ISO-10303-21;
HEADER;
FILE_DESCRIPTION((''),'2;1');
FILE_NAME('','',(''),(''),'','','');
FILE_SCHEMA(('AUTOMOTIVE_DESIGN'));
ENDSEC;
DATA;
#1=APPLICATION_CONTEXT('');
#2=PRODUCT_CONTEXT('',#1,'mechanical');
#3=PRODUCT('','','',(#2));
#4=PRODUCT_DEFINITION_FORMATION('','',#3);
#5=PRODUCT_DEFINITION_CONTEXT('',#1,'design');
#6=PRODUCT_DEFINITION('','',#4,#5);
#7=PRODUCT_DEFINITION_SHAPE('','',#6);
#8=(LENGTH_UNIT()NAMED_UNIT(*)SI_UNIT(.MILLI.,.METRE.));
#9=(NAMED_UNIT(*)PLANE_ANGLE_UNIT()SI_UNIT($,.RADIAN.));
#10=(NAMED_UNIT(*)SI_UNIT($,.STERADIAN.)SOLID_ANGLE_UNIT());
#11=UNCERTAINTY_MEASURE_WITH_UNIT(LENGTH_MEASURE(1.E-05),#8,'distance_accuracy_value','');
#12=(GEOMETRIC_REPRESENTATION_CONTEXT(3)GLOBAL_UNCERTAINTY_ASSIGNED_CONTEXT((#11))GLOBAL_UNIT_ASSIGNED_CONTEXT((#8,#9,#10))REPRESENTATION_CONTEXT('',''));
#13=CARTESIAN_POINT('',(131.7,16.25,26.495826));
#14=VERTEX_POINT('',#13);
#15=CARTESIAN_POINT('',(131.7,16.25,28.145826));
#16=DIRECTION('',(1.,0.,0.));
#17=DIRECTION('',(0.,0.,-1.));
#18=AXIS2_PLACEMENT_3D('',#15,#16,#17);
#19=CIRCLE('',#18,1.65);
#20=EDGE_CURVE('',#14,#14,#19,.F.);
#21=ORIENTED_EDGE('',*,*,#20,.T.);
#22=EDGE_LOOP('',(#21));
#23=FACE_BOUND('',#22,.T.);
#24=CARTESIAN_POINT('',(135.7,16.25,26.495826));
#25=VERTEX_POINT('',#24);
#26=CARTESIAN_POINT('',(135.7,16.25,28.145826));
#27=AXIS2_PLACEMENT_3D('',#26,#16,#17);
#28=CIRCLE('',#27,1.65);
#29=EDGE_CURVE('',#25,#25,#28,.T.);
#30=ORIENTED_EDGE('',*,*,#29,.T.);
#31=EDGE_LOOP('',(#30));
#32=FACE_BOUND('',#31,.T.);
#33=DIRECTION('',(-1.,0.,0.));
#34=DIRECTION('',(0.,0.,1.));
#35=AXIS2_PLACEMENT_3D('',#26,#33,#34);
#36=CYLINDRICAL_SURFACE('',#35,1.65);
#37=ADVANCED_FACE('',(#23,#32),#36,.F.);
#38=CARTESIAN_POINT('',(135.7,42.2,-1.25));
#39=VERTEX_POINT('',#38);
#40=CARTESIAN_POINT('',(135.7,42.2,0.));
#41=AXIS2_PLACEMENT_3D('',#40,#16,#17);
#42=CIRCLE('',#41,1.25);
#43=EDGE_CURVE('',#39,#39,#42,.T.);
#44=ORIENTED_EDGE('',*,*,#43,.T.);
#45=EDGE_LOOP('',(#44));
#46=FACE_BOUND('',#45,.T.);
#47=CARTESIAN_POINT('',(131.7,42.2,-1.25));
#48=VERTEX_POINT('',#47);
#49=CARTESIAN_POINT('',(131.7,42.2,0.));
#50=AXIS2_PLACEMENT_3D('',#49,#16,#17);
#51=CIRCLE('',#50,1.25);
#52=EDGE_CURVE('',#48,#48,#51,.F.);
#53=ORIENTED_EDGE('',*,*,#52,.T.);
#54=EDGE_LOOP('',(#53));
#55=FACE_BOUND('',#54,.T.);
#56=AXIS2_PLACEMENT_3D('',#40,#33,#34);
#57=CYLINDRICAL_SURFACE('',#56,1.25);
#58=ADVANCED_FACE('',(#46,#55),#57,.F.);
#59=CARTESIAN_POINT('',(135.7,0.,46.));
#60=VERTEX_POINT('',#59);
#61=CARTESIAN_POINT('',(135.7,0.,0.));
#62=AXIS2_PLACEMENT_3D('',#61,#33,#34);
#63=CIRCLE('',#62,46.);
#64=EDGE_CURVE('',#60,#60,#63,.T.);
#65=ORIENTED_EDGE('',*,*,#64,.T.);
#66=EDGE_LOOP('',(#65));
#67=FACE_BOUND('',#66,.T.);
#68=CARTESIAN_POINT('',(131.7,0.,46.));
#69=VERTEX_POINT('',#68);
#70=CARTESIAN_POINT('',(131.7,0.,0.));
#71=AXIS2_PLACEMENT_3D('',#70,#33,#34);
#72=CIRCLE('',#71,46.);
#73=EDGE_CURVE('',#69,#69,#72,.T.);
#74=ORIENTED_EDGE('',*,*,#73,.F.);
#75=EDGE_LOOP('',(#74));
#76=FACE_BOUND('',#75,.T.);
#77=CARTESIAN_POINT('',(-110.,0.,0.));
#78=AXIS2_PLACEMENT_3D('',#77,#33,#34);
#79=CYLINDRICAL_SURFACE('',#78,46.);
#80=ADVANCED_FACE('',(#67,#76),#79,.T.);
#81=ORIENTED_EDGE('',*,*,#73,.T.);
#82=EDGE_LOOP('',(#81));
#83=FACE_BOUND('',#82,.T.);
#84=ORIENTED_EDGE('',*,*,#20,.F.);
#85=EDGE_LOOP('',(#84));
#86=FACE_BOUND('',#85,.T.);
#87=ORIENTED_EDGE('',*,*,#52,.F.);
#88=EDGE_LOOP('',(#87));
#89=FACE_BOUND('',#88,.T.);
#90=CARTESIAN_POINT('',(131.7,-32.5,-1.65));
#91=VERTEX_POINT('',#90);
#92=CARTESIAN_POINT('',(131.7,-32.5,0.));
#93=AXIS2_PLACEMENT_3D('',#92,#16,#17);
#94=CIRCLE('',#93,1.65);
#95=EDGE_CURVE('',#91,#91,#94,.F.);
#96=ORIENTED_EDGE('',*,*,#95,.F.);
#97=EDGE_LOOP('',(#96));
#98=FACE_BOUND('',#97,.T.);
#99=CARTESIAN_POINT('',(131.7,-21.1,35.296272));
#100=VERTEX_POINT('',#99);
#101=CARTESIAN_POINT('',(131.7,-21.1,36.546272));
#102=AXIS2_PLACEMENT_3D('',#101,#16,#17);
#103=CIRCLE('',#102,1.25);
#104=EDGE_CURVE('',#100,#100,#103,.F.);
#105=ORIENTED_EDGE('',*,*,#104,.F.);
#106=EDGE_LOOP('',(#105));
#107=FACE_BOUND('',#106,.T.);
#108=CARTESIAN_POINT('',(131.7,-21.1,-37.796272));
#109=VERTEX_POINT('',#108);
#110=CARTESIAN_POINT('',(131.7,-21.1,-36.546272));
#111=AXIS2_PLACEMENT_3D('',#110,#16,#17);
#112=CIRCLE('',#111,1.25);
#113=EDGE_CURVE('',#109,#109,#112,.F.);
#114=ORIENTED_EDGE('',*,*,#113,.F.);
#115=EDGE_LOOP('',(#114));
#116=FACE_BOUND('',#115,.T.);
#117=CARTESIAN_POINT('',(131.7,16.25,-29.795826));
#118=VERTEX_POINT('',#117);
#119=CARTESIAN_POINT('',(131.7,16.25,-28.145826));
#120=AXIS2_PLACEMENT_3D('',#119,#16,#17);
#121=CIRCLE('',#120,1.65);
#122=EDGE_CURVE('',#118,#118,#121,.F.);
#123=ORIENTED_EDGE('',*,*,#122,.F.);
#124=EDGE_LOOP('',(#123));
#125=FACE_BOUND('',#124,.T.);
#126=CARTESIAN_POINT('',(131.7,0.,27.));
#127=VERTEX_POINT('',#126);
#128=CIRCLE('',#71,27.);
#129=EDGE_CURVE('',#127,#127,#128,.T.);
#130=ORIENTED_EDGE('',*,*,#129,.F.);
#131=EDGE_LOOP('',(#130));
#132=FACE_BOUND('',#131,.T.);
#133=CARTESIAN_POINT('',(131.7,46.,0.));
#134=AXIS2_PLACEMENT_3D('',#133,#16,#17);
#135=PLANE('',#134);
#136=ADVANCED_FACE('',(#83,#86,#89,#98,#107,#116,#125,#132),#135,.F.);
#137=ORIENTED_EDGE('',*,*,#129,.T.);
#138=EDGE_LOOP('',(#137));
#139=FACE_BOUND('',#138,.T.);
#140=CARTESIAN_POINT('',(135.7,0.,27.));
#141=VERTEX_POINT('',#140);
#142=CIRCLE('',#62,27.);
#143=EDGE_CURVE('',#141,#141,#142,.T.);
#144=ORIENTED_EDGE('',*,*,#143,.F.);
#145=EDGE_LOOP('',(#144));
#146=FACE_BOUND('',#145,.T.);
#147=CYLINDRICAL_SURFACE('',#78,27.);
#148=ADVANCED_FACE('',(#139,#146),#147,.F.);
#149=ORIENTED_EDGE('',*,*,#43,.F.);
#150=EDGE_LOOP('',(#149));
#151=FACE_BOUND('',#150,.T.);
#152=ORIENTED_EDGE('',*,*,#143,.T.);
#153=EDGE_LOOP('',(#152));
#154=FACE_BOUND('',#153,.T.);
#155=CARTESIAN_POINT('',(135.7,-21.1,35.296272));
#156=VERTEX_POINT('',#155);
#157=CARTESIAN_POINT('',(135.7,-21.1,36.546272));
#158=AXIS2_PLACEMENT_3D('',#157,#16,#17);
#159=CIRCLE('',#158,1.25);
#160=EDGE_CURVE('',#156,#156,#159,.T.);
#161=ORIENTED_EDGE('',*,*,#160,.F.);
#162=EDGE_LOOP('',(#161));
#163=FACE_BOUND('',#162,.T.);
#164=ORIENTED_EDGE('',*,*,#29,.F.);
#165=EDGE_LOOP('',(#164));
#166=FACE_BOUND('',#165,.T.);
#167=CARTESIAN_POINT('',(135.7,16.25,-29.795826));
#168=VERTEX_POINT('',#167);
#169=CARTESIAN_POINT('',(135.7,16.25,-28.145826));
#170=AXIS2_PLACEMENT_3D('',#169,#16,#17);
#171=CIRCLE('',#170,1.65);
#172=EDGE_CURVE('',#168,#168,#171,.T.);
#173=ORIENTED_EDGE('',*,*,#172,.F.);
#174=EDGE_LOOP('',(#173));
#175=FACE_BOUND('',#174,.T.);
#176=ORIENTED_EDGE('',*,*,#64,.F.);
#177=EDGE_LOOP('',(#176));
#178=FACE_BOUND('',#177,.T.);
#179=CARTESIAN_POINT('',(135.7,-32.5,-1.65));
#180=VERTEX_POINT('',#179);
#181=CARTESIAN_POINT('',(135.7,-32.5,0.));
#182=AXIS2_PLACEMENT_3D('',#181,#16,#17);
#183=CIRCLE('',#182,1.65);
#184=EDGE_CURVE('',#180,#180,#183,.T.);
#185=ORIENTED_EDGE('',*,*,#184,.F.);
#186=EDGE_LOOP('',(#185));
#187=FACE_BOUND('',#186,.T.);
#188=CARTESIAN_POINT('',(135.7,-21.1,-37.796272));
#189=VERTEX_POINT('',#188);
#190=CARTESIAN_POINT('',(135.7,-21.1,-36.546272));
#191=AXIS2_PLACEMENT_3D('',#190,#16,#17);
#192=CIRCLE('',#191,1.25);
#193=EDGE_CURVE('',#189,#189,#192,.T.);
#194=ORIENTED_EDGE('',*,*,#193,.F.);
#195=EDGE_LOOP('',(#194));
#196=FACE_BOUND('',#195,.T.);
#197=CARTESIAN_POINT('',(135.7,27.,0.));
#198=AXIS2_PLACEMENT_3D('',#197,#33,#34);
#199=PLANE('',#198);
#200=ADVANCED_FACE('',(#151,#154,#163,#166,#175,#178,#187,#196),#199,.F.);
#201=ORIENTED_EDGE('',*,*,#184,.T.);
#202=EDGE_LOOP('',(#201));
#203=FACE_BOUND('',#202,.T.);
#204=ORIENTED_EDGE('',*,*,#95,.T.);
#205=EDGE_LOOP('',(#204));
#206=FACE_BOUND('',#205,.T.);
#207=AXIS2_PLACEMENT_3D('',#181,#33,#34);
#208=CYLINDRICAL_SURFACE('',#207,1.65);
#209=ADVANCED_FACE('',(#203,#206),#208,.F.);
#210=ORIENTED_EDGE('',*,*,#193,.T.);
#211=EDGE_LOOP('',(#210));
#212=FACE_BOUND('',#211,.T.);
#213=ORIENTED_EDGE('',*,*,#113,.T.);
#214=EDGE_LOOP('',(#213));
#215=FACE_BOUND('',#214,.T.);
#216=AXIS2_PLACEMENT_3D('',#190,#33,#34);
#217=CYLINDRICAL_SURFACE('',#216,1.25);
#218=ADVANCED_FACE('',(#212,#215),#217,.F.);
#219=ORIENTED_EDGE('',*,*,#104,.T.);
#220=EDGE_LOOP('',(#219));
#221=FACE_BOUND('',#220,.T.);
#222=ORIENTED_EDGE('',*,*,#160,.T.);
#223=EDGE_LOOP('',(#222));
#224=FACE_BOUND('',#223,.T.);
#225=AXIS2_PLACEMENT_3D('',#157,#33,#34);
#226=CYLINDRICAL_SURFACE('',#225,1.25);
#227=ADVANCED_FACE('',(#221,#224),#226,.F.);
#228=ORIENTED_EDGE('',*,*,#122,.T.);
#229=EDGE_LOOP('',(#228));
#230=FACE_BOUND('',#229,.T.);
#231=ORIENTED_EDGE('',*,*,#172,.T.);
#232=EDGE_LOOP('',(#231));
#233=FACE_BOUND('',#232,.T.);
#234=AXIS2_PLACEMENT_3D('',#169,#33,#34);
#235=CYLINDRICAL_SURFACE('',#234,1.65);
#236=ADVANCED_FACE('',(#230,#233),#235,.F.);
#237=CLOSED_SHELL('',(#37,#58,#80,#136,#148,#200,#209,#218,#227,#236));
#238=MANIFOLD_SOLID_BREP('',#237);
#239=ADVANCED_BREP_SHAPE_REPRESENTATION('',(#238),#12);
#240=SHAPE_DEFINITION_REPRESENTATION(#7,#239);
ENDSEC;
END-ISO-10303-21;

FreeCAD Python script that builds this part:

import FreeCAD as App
import Part
import Sketcher

V = App.Vector
Q = App.Units.Quantity


def add_polygon(sketch, points):
    """Adds a closed chain of lines whose ends are joined by coincident constraints."""
    first, n = sketch.GeometryCount, len(points)
    for a, b in zip(points, points[1:] + points[:1]):
        sketch.addGeometry(Part.LineSegment(App.Vector(*a, 0), App.Vector(*b, 0)), False)
    for i in range(n):
        sketch.addConstraint(Sketcher.Constraint("Coincident", first + i, 2, first + (i + 1) % n, 1))

doc = App.newDocument("Part")
body = doc.addObject("PartDesign::Body", "Body")

sketch1 = body.newObject("Sketcher::SketchObject", "Sketch")
sketch1.AttachmentSupport = (doc.getObject("XY_Plane"), [""])
sketch1.MapMode = "FlatFace"
add_polygon(sketch1, [(131.7, 46), (131.7, 27), (135.7, 27), (135.7, 46)])
sketch1.addConstraint([
    Sketcher.Constraint("Vertical", 0),
    Sketcher.Constraint("Horizontal", 1),
    Sketcher.Constraint("Vertical", 2),
    Sketcher.Constraint("Horizontal", 3),
    Sketcher.Constraint("DistanceX", 1, 1, 1, 2, Q("4 mm")),
    Sketcher.Constraint("DistanceY", 0, 2, 0, 1, Q("19 mm")),
    Sketcher.Constraint("DistanceY", -1, 1, 0, 2, Q("27 mm")),
    Sketcher.Constraint("DistanceX", -1, 1, 0, 2, Q("131.7 mm")),
])
revolution = body.newObject("PartDesign::Revolution", "Revolution")
revolution.Profile = sketch1
revolution.ReferenceAxis = (sketch1, ["H_Axis"])
revolution.Angle = 360

sketch2 = body.newObject("Sketcher::SketchObject", "Sketch001")
sketch2.AttachmentSupport = (doc.getObject("YZ_Plane"), [""])
sketch2.MapMode = "FlatFace"
sketch2.addGeometry([
    Part.Circle(V(42.2, 0, 0), V(0, 0, 1), 1.2),
    Part.Circle(V(-21.1, 36.5, 0), V(0, 0, 1), 1.2),
    Part.Circle(V(-21.1, -36.5, 0), V(0, 0, 1), 1.2),
    Part.Circle(V(16.2, 28.1, 0), V(0, 0, 1), 1.6),
    Part.Circle(V(-32.5, 0, 0), V(0, 0, 1), 1.6),
    Part.Circle(V(16.2, -28.1, 0), V(0, 0, 1), 1.6),
], False)
sketch2.addConstraint([
    Sketcher.Constraint("Equal", 0, 1),
    Sketcher.Constraint("Equal", 1, 2),
    Sketcher.Constraint("Equal", 3, 4),
    Sketcher.Constraint("Equal", 4, 5),
    Sketcher.Constraint("Symmetric", 1, 3, 2, 3, -1),
    Sketcher.Constraint("Symmetric", 3, 3, 5, 3, -1),
    Sketcher.Constraint("PointOnObject", 0, 3, -1),
    Sketcher.Constraint("PointOnObject", 4, 3, -1),
    Sketcher.Constraint("Diameter", 0, Q("2.5 mm")),
    Sketcher.Constraint("Diameter", 3, Q("3.3 mm")),
    Sketcher.Constraint("DistanceX", -1, 1, 0, 3, Q("42.2 mm")),
    Sketcher.Constraint("DistanceX", 1, 3, -1, 1, Q("21.1 mm")),
    Sketcher.Constraint("DistanceX", 4, 3, -1, 1, Q("32.5 mm")),
    Sketcher.Constraint("DistanceX", -1, 1, 3, 3, Q("16.25 mm")),
    Sketcher.Constraint("DistanceY", 5, 3, 3, 3, Q("56.291651 mm")),
    Sketcher.Constraint("DistanceY", -1, 1, 1, 3, Q("36.546272 mm")),
])
pocket1 = body.newObject("PartDesign::Pocket", "Pocket")
pocket1.Profile = sketch2
pocket1.Type = "ThroughAll"
pocket1.Midplane = True

doc.recompute()
